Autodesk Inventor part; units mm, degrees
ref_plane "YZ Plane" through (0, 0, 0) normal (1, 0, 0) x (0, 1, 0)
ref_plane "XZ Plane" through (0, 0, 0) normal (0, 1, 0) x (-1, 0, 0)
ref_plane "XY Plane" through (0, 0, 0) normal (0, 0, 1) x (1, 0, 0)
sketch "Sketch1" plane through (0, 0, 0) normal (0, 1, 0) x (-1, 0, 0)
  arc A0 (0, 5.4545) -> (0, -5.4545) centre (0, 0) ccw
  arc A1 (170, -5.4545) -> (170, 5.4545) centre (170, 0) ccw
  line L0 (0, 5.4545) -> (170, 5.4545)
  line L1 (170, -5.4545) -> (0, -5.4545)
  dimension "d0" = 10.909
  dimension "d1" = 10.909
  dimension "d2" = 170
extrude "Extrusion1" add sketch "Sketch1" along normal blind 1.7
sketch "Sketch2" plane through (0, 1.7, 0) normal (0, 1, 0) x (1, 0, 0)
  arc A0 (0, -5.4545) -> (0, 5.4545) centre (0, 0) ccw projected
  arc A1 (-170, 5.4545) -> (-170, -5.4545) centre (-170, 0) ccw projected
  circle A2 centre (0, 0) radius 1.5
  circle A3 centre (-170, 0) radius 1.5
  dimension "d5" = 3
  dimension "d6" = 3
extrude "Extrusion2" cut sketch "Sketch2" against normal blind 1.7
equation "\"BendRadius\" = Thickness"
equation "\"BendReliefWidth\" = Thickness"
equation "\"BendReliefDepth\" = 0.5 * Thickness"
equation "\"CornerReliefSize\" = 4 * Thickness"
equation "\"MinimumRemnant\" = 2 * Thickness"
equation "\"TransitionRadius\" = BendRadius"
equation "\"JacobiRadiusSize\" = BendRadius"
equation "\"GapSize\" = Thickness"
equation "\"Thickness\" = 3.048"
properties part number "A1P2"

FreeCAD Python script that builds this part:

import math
import FreeCAD as App
import Part
import Sketcher

doc = App.newDocument("Part")
body = doc.addObject("PartDesign::Body", "Body")

# Sketch on XZ plane
sketch1 = body.newObject("Sketcher::SketchObject", "Sketch")
sketch1.AttachmentSupport = (doc.getObject("XZ_Plane"), [""])
sketch1.MapMode = "FlatFace"
sketch1.addGeometry(Part.LineSegment(App.Vector(-170, 5, 0), App.Vector(0, 5, 0)), False)
sketch1.addGeometry(Part.ArcOfCircle(Part.Circle(App.Vector(0, 0, 0), App.Vector(0, 0, 1), 5), math.radians(-90), math.radians(90)), False)
sketch1.addGeometry(Part.LineSegment(App.Vector(0, -5, 0), App.Vector(-170, -5, 0)), False)
sketch1.addGeometry(Part.ArcOfCircle(Part.Circle(App.Vector(-170, 0, 0), App.Vector(0, 0, 1), 5), math.radians(90), math.radians(270)), False)
sketch1.addConstraint(Sketcher.Constraint("Tangent", 0, 2, 1, 2))
sketch1.addConstraint(Sketcher.Constraint("Tangent", 1, 1, 2, 1))
sketch1.addConstraint(Sketcher.Constraint("Tangent", 2, 2, 3, 2))
sketch1.addConstraint(Sketcher.Constraint("Tangent", 3, 1, 0, 1))
sketch1.addConstraint(Sketcher.Constraint("Horizontal", 0))
sketch1.addConstraint(Sketcher.Constraint("Horizontal", 2))
sketch1.addConstraint(Sketcher.Constraint("Coincident", 1, 3, -1, 1))
sketch1.addConstraint(Sketcher.Constraint("DistanceX", 0, 1, 0, 2, 170.0))
sketch1.addConstraint(Sketcher.Constraint("Radius", 1, 5.4545))
pad1 = body.newObject("PartDesign::Pad", "Pad")
pad1.Profile = sketch1
pad1.Length = 1.7
pad1.Reversed = True

# Sketch on XZ plane
sketch2 = body.newObject("Sketcher::SketchObject", "Sketch001")
sketch2.AttachmentSupport = (doc.getObject("XZ_Plane"), [""])
sketch2.MapMode = "FlatFace"
sketch2.AttachmentOffset = App.Placement(App.Vector(0, 0, -1.7), App.Rotation())
sketch2.addGeometry(Part.Circle(App.Vector(0, 0, 0), App.Vector(0, 0, 1), 1.5), False)
sketch2.addGeometry(Part.Circle(App.Vector(-170, 0, 0), App.Vector(0, 0, 1), 1.5), False)
sketch2.addConstraint(Sketcher.Constraint("Coincident", 0, 3, -1, 1))
sketch2.addConstraint(Sketcher.Constraint("Equal", 0, 1))
sketch2.addConstraint(Sketcher.Constraint("PointOnObject", 1, 3, -1))
sketch2.addConstraint(Sketcher.Constraint("Diameter", 0, 3.0))
sketch2.addConstraint(Sketcher.Constraint("DistanceX", 1, 3, -1, 1, 170.0))
pocket1 = body.newObject("PartDesign::Pocket", "Pocket")
pocket1.Profile = sketch2
pocket1.Length = 1.7
pocket1.Reversed = True

doc.recompute()
